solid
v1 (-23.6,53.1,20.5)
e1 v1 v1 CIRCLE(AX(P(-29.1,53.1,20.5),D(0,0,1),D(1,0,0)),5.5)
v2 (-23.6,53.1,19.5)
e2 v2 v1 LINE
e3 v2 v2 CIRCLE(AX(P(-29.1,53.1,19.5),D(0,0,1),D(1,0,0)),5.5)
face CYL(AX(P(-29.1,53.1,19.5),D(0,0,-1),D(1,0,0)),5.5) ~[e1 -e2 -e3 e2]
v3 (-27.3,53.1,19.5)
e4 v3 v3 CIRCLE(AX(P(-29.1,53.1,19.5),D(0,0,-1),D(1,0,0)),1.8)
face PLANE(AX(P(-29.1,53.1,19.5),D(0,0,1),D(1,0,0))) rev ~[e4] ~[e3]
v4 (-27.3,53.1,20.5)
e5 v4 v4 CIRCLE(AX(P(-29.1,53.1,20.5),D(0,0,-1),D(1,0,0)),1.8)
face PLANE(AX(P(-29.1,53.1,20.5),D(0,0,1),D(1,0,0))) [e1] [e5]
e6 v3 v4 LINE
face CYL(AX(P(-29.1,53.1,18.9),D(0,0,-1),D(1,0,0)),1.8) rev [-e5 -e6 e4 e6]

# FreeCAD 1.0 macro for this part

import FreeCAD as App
import Part
import Sketcher
from FreeCAD import Vector
Q = App.Units.Quantity

doc = App.newDocument("Part")
body = doc.addObject("PartDesign::Body", "Body")

# Sketch on XY plane
sketch1 = doc.addObject("Sketcher::SketchObject", "Sketch")
body.addObject(sketch1)
sketch1.AttachmentSupport = (doc.XY_Plane, [""])
sketch1.MapMode = "FlatFace"
sketch1.AttachmentOffset = App.Placement(Vector(0, 0, 24.6), App.Rotation())
sketch1.addGeometry(Part.Circle(Vector(-29.1, 53.1, 0), Vector(0, 0, 1), 1.8), False)
sketch1.addConstraint([
    Sketcher.Constraint("Diameter", 0, Q("3.6 mm")),
    Sketcher.Constraint("DistanceX", 0, 3, -1, 1, Q("29.1 mm")),
    Sketcher.Constraint("DistanceY", -1, 1, 0, 3, Q("53.1 mm")),
])
pad1 = doc.addObject("PartDesign::Pad", "Pad")
body.addObject(pad1)
pad1.Profile = sketch1
pad1.Length = 5
body2 = doc.addObject("PartDesign::Body", "Body001")

# Sketch on XY plane
sketch2 = doc.addObject("Sketcher::SketchObject", "Sketch001")
body2.addObject(sketch2)
sketch2.AttachmentSupport = (doc.getObject("XY_Plane001"), [""])
sketch2.MapMode = "FlatFace"
sketch2.AttachmentOffset = App.Placement(Vector(0, 0, 25.2), App.Rotation())
sketch2.addGeometry(Part.Circle(Vector(-29, 53, 0), Vector(0, 0, 1), 6), False)
sketch2.addConstraint([
    Sketcher.Constraint("Diameter", 0, Q("11 mm")),
    Sketcher.Constraint("DistanceX", 0, 3, -1, 1, Q("29.1 mm")),
    Sketcher.Constraint("DistanceY", -1, 1, 0, 3, Q("53.1 mm")),
])
pad2 = doc.addObject("PartDesign::Pad", "Pad001")
body2.addObject(pad2)
pad2.Profile = sketch2
pad2.Length = 1
doc.recompute()

boolean = doc.addObject("PartDesign::Boolean", "Boolean")
body2.addObject(boolean)
boolean.Type = "Cut"
boolean.addObjects([body])
body3 = doc.addObject("PartDesign::Body", "Body002")
doc.recompute()

body2.Placement = App.Placement(Vector(0, 0, -5.7), App.Rotation(Vector(0, 0, 1), 0))
boolean2 = doc.addObject("PartDesign::Boolean", "Boolean001")
body3.addObject(boolean2)
boolean2.Type = "Fuse"
boolean2.addObjects([body2])

doc.recompute()
